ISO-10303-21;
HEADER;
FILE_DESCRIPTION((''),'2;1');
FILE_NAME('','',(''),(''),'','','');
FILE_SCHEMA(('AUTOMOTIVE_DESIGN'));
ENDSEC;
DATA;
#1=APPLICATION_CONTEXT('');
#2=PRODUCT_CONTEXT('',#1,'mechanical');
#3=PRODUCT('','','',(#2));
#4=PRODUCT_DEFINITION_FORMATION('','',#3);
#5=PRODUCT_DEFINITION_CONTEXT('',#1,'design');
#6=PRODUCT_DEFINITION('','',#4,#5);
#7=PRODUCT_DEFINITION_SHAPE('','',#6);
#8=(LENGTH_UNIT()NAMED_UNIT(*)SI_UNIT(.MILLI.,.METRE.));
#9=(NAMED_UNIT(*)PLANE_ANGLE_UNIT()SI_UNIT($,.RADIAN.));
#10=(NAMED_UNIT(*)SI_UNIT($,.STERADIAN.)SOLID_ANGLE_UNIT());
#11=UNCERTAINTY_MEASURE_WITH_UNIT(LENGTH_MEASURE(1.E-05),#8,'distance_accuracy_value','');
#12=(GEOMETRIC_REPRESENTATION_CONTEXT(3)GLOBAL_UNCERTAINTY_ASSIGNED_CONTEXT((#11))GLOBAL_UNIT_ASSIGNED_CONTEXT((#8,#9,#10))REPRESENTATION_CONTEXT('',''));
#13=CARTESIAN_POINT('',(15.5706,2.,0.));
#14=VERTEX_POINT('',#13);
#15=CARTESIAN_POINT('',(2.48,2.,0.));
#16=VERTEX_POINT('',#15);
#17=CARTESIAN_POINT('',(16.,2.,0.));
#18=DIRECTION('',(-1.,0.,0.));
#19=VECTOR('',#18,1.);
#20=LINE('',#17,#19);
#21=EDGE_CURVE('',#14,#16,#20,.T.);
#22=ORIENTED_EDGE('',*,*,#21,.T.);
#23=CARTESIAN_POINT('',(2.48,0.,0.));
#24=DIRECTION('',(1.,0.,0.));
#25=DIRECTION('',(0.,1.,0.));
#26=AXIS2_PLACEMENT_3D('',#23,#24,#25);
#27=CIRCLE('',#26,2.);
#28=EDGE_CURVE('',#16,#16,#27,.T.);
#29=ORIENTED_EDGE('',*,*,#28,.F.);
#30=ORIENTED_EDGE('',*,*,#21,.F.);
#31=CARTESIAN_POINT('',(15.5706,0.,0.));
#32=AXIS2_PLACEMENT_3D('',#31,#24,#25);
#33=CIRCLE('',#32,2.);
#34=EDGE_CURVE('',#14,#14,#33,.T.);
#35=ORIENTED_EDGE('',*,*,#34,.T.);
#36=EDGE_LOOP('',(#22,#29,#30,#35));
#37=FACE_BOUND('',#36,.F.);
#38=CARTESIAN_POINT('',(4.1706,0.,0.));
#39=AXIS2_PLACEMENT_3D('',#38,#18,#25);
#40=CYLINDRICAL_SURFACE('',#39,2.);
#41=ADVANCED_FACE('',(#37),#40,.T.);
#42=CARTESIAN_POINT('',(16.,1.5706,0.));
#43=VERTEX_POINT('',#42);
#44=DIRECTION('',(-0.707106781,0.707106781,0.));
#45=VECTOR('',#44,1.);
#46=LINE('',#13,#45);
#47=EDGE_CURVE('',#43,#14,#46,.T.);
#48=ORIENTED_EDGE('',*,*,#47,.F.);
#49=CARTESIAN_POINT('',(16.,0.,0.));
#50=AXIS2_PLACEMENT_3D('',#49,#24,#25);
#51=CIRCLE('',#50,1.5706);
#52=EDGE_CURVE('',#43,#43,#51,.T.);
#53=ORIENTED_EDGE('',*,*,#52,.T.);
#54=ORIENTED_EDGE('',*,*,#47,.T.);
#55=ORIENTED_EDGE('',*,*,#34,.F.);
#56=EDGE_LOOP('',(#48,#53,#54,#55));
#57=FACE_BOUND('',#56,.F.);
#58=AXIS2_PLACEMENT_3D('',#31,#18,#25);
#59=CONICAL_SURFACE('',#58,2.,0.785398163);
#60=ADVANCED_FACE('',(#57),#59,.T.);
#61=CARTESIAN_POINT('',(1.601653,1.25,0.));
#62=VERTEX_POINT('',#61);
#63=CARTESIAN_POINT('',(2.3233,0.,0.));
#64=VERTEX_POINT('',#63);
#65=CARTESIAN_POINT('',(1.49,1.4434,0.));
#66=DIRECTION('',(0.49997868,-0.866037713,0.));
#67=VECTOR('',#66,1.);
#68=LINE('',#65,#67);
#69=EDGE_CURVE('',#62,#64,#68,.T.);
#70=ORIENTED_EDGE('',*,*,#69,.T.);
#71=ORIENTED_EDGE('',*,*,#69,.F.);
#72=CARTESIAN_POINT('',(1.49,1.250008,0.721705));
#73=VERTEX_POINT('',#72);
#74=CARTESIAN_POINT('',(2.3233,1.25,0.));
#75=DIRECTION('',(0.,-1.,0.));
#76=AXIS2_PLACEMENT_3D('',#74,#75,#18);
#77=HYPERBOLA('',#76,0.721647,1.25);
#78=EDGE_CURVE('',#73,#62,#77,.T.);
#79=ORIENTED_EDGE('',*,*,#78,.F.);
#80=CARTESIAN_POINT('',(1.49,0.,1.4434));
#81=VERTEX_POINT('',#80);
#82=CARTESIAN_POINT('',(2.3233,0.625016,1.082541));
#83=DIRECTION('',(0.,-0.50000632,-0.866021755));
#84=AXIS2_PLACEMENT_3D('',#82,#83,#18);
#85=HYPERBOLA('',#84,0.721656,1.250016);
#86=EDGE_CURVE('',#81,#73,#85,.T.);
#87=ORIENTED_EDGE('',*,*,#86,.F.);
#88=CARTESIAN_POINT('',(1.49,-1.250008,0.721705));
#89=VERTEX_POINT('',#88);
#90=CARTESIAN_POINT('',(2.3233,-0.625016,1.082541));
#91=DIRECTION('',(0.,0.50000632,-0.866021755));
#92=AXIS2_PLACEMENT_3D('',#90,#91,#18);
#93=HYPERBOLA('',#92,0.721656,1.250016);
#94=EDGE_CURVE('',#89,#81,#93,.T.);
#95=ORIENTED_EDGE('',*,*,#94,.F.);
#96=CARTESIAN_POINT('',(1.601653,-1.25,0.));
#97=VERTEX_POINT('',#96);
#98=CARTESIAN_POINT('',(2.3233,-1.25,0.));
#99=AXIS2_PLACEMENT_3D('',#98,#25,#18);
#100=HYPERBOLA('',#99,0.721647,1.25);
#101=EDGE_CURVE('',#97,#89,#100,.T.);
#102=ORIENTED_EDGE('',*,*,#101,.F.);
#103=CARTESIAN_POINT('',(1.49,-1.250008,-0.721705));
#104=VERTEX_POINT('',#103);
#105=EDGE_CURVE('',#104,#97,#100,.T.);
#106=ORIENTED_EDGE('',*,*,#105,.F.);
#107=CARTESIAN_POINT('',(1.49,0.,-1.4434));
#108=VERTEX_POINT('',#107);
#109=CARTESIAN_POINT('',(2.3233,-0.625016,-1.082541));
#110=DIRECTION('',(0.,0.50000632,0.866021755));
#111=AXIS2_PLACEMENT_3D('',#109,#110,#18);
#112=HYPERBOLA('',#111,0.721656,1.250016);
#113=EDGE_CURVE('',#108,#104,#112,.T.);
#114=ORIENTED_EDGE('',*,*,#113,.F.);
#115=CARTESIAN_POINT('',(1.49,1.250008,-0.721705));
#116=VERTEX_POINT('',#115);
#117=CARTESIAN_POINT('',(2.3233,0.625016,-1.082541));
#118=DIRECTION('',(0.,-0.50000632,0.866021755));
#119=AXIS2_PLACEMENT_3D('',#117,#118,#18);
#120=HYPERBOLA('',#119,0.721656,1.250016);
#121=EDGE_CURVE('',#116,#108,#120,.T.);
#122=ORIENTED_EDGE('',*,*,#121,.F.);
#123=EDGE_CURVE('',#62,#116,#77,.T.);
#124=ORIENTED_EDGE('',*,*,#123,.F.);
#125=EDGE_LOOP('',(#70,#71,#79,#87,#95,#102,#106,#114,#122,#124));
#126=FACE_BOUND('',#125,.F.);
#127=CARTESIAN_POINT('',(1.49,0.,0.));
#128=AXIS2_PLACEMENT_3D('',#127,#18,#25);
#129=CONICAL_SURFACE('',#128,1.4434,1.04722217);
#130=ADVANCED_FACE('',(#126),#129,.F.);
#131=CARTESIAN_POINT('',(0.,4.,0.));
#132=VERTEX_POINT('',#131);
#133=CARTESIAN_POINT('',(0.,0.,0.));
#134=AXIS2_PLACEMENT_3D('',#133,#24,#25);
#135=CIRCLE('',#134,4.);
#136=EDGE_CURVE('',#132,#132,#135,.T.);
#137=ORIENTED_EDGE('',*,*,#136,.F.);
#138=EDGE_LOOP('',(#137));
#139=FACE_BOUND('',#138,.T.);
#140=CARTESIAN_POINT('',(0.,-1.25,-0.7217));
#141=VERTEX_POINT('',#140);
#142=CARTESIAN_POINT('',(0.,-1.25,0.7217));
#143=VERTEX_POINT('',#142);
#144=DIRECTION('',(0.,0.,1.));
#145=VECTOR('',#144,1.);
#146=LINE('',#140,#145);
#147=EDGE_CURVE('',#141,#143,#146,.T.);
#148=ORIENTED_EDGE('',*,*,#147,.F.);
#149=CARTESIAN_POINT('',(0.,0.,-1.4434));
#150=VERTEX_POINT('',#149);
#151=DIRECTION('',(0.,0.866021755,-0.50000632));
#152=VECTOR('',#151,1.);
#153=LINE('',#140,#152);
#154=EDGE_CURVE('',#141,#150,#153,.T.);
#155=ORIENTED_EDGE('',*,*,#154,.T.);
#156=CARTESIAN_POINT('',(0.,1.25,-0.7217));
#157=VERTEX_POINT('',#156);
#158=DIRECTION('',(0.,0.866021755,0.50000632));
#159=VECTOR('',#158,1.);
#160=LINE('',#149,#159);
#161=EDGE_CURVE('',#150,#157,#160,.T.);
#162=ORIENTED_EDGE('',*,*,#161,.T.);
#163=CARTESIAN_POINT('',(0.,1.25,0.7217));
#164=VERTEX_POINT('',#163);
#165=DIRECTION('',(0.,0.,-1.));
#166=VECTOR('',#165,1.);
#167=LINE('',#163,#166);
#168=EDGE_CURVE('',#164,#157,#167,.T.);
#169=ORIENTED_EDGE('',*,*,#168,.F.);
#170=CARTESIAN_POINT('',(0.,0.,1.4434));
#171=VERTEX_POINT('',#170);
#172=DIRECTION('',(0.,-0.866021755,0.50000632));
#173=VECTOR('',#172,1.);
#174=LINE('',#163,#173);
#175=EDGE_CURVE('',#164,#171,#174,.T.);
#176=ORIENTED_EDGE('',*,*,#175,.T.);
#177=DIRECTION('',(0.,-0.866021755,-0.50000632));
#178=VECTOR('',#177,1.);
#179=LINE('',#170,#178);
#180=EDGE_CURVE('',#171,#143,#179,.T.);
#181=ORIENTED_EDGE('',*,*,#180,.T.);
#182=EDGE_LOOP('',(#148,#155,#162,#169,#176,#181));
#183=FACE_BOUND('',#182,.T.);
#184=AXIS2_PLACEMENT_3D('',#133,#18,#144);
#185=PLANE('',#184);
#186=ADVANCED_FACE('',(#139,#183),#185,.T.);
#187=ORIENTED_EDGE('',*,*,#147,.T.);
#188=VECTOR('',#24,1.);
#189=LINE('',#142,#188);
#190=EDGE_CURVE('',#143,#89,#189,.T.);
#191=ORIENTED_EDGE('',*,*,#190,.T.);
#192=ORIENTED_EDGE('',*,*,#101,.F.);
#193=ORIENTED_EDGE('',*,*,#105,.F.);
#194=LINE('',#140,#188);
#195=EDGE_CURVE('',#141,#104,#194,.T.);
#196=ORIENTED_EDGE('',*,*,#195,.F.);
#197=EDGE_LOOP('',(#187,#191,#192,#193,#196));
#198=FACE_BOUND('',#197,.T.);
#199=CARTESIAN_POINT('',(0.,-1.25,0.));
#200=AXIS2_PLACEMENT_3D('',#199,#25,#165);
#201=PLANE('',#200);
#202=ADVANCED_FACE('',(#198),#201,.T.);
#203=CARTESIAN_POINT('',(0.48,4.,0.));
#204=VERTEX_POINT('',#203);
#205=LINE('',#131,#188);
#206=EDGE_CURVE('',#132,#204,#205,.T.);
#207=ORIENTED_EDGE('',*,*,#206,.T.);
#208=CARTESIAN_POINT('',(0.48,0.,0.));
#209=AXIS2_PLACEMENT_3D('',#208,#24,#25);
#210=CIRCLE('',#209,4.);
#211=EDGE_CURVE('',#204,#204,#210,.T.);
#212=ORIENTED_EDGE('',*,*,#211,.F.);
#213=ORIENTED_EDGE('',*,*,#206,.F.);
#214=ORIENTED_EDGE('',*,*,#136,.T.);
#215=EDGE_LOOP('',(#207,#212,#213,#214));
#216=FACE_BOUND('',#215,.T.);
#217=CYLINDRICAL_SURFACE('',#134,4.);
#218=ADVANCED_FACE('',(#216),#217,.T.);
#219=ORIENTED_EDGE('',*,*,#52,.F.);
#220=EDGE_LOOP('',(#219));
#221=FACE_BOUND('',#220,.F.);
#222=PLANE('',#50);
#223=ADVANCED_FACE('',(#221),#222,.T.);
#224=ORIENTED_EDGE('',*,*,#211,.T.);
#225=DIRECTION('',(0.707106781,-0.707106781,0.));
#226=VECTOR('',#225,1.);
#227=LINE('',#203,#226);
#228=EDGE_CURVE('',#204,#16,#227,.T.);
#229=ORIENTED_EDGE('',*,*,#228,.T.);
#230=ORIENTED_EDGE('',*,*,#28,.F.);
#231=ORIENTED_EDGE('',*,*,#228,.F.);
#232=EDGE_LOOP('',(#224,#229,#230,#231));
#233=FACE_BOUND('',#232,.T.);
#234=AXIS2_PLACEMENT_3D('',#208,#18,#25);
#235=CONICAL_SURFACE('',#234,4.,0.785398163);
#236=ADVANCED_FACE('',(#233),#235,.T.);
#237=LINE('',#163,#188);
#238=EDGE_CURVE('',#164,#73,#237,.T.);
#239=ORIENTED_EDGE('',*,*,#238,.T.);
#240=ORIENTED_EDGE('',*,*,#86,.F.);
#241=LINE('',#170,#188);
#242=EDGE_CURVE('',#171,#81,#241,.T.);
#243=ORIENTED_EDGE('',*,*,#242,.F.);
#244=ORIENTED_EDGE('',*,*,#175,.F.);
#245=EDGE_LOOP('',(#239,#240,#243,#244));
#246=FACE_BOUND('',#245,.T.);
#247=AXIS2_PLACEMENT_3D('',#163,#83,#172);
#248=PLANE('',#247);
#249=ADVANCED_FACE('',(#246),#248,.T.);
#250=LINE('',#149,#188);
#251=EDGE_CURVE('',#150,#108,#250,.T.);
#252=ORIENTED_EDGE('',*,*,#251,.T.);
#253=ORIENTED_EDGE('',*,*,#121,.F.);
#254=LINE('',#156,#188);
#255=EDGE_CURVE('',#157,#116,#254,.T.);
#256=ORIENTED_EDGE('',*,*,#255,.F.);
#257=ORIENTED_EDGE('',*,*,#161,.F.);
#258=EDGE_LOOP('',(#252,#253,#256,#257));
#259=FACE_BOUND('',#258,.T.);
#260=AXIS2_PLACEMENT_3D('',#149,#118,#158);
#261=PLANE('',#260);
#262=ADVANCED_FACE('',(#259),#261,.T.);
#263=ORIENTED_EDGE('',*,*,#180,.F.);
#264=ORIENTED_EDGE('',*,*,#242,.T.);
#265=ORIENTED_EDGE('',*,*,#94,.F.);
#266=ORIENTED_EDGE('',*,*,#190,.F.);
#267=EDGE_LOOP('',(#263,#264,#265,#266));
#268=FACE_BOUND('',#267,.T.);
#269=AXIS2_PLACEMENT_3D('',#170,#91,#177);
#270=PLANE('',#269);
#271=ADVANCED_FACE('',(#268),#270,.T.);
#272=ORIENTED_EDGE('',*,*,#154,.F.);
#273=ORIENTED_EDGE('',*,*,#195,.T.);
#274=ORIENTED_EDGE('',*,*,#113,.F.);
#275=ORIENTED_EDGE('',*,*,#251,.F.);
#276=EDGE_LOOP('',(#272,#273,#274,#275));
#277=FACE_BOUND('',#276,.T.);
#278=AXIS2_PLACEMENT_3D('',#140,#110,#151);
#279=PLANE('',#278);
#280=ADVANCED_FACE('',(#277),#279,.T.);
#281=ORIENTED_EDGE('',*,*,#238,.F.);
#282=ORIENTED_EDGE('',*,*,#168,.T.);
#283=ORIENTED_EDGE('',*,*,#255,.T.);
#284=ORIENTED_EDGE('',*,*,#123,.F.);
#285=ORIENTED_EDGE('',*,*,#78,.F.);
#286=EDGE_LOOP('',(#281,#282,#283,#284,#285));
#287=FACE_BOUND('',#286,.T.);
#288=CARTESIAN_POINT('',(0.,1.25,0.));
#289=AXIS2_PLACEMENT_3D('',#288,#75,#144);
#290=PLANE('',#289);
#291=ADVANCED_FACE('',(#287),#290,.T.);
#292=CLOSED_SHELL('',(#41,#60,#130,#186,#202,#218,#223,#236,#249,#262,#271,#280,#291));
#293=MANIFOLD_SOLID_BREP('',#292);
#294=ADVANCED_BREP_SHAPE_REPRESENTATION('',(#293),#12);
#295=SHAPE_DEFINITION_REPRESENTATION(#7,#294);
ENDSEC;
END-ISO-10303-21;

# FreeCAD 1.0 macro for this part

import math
import FreeCAD as App
import Part
import Sketcher
Q = App.Units.Quantity


def edges_at(feature, points):
    """Names of the edges that pass closest to the given points."""
    edges = feature.Shape.Edges
    near = lambda p: min(range(len(edges)), key=lambda i: edges[i].distToShape(Part.Vertex(*p))[0])
    return sorted({f"Edge{near(p) + 1}" for p in points})


def add_polygon(sketch, points):
    """Adds a closed chain of lines whose ends are joined by coincident constraints."""
    first, n = sketch.GeometryCount, len(points)
    for a, b in zip(points, points[1:] + points[:1]):
        sketch.addGeometry(Part.LineSegment(App.Vector(*a, 0), App.Vector(*b, 0)), False)
    for i in range(n):
        sketch.addConstraint(Sketcher.Constraint("Coincident", first + i, 2, first + (i + 1) % n, 1))

doc = App.newDocument("Part")
params = doc.addObject("Spreadsheet::Sheet", "Params")
for row, (alias, value) in enumerate([
    ("sketch1_width", "1.49 mm"),
    ("sketch1_height", "2 mm"),
    ("revolution_angle", "360 deg"),
    ("chamfer_size", "0.4294 mm"),
    ("chamfer_size2", "0.4294 mm"),
], start=1):
    params.set(f"A{row}", alias)
    params.set(f"B{row}", "=" + value)
    params.setAlias(f"B{row}", alias)

body = doc.addObject("PartDesign::Body", "Body")

# Sketch on XY plane
sketch1 = body.newObject("Sketcher::SketchObject", "Sketch")
sketch1.AttachmentSupport = (doc.getObject("XY_Plane"), [""])
sketch1.MapMode = "FlatFace"
add_polygon(sketch1, [(2.32, 0), (16, 0), (16, 2), (2.48, 2), (0.48, 4), (0, 4), (0, 1.44), (1.49, 1.44)])  # lines 0-7
sketch1.addConstraint([
    Sketcher.Constraint("Horizontal", 0),
    Sketcher.Constraint("Vertical", 1),
    Sketcher.Constraint("Horizontal", 2),
    Sketcher.Constraint("Horizontal", 4),
    Sketcher.Constraint("Vertical", 5),
    Sketcher.Constraint("Horizontal", 6),
    Sketcher.Constraint("PointOnObject", 0, 2, -1),
    Sketcher.Constraint("PointOnObject", 4, 2, -2),
    Sketcher.Constraint("DistanceX", -1, 1, 0, 2, 16.0),
    Sketcher.Constraint("DistanceY", -1, 1, 3, 2, 4.0),
    Sketcher.Constraint("DistanceX", 6, 1, 6, 2, 1.49),
    Sketcher.Constraint("DistanceY", 1, 1, 1, 2, 2.0),
    Sketcher.Constraint("DistanceX", -1, 1, 2, 2, 2.48),
    Sketcher.Constraint("Angle", 3, Q("135 deg")),
    Sketcher.Constraint("DistanceX", 0, 1, 0, 2, 13.6767),
    Sketcher.Constraint("DistanceY", 5, 2, 5, 1, 2.5566),
])
sketch1.setExpression("Constraints[18]", "Params.sketch1_width")
sketch1.setExpression("Constraints[19]", "Params.sketch1_height")
revolution = body.newObject("PartDesign::Revolution", "Revolution")
revolution.Profile = sketch1
revolution.ReferenceAxis = (sketch1, ["H_Axis"])
revolution.setExpression("Angle", "Params.revolution_angle")

# Sketch on YZ plane
sketch2 = body.newObject("Sketcher::SketchObject", "Sketch001")
sketch2.AttachmentSupport = (doc.getObject("YZ_Plane"), [""])
sketch2.MapMode = "FlatFace"
sketch2.addGeometry([
    Part.LineSegment(App.Vector(1.2, 0.7, 0), App.Vector(0, 1.4, 0)),  # 0
    Part.ArcOfCircle(Part.Circle(App.Vector(0, 0, 0), App.Vector(0, 0, 1), 1.4), math.radians(30), math.radians(90)),  # 1
    Part.ArcOfCircle(Part.Circle(App.Vector(0, 0, 0), App.Vector(0, 0, 1), 1.4), math.radians(90), math.radians(150)),  # 2
    Part.LineSegment(App.Vector(0, 1.4, 0), App.Vector(-1.2, 0.7, 0)),  # 3
    Part.ArcOfCircle(Part.Circle(App.Vector(0, 0, 0), App.Vector(0, 0, 1), 1.4), math.radians(-30), math.radians(30)),  # 4
    Part.LineSegment(App.Vector(1.2, 0.7, 0), App.Vector(1.2, -0.7, 0)),  # 5
    Part.LineSegment(App.Vector(-1.2, 0.7, 0), App.Vector(-1.2, -0.7, 0)),  # 6
    Part.ArcOfCircle(Part.Circle(App.Vector(0, 0, 0), App.Vector(0, 0, 1), 1.4), math.radians(150), math.radians(210)),  # 7
    Part.LineSegment(App.Vector(-1.2, -0.7, 0), App.Vector(0, -1.4, 0)),  # 8
    Part.ArcOfCircle(Part.Circle(App.Vector(0, 0, 0), App.Vector(0, 0, 1), 1.4), math.radians(-150), math.radians(-90)),  # 9
    Part.ArcOfCircle(Part.Circle(App.Vector(0, 0, 0), App.Vector(0, 0, 1), 1.4), math.radians(-90), math.radians(-30)),  # 10
    Part.LineSegment(App.Vector(0, -1.4, 0), App.Vector(1.2, -0.7, 0)),  # 11
], False)
sketch2.addConstraint([
    Sketcher.Constraint("Coincident", 0, 1, 1, 1),
    Sketcher.Constraint("Coincident", 1, 2, 0, 2),
    Sketcher.Constraint("Coincident", 2, 1, 3, 1),
    Sketcher.Constraint("Coincident", 3, 2, 2, 2),
    Sketcher.Constraint("Coincident", 4, 1, 5, 2),
    Sketcher.Constraint("Coincident", 5, 1, 4, 2),
    Sketcher.Constraint("Coincident", 6, 1, 7, 1),
    Sketcher.Constraint("Coincident", 7, 2, 6, 2),
    Sketcher.Constraint("Coincident", 8, 1, 9, 1),
    Sketcher.Constraint("Coincident", 9, 2, 8, 2),
    Sketcher.Constraint("Coincident", 10, 1, 11, 1),
    Sketcher.Constraint("Coincident", 11, 2, 10, 2),
    Sketcher.Constraint("Vertical", 5),
    Sketcher.Constraint("Vertical", 6),
    Sketcher.Constraint("Coincident", 1, 3, -1, 1),
    Sketcher.Constraint("Coincident", 2, 3, -1, 1),
    Sketcher.Constraint("Coincident", 4, 3, -1, 1),
    Sketcher.Constraint("Coincident", 7, 3, -1, 1),
    Sketcher.Constraint("Coincident", 9, 3, -1, 1),
    Sketcher.Constraint("Coincident", 10, 3, -1, 1),
    Sketcher.Constraint("Coincident", 2, 1, 1, 2),
    Sketcher.Constraint("Coincident", 5, 1, 0, 1),
    Sketcher.Constraint("Coincident", 6, 1, 3, 2),
    Sketcher.Constraint("Coincident", 8, 1, 7, 2),
    Sketcher.Constraint("Coincident", 10, 1, 9, 2),
    Sketcher.Constraint("PointOnObject", 1, 2, -2),
    Sketcher.Constraint("PointOnObject", 9, 2, -2),
    Sketcher.Constraint("Parallel", 0, 8),
    Sketcher.Constraint("Parallel", 3, 11),
    Sketcher.Constraint("Angle", 0, Q("149.9996 deg")),
    Sketcher.Constraint("Radius", 1, 1.4434),
])
pad1 = body.newObject("PartDesign::Pad", "Pad")
pad1.Profile = sketch2
pad1.Type = "UpToFirst"
doc.recompute()

chamfer = body.newObject("PartDesign::Chamfer", "Chamfer")
chamfer.Base = (pad1, edges_at(pad1, [(16, -2, 0)]))
chamfer.ChamferType = "Two distances"
chamfer.setExpression("Size", "Params.chamfer_size")
chamfer.setExpression("Size2", "Params.chamfer_size2")

doc.recompute()
